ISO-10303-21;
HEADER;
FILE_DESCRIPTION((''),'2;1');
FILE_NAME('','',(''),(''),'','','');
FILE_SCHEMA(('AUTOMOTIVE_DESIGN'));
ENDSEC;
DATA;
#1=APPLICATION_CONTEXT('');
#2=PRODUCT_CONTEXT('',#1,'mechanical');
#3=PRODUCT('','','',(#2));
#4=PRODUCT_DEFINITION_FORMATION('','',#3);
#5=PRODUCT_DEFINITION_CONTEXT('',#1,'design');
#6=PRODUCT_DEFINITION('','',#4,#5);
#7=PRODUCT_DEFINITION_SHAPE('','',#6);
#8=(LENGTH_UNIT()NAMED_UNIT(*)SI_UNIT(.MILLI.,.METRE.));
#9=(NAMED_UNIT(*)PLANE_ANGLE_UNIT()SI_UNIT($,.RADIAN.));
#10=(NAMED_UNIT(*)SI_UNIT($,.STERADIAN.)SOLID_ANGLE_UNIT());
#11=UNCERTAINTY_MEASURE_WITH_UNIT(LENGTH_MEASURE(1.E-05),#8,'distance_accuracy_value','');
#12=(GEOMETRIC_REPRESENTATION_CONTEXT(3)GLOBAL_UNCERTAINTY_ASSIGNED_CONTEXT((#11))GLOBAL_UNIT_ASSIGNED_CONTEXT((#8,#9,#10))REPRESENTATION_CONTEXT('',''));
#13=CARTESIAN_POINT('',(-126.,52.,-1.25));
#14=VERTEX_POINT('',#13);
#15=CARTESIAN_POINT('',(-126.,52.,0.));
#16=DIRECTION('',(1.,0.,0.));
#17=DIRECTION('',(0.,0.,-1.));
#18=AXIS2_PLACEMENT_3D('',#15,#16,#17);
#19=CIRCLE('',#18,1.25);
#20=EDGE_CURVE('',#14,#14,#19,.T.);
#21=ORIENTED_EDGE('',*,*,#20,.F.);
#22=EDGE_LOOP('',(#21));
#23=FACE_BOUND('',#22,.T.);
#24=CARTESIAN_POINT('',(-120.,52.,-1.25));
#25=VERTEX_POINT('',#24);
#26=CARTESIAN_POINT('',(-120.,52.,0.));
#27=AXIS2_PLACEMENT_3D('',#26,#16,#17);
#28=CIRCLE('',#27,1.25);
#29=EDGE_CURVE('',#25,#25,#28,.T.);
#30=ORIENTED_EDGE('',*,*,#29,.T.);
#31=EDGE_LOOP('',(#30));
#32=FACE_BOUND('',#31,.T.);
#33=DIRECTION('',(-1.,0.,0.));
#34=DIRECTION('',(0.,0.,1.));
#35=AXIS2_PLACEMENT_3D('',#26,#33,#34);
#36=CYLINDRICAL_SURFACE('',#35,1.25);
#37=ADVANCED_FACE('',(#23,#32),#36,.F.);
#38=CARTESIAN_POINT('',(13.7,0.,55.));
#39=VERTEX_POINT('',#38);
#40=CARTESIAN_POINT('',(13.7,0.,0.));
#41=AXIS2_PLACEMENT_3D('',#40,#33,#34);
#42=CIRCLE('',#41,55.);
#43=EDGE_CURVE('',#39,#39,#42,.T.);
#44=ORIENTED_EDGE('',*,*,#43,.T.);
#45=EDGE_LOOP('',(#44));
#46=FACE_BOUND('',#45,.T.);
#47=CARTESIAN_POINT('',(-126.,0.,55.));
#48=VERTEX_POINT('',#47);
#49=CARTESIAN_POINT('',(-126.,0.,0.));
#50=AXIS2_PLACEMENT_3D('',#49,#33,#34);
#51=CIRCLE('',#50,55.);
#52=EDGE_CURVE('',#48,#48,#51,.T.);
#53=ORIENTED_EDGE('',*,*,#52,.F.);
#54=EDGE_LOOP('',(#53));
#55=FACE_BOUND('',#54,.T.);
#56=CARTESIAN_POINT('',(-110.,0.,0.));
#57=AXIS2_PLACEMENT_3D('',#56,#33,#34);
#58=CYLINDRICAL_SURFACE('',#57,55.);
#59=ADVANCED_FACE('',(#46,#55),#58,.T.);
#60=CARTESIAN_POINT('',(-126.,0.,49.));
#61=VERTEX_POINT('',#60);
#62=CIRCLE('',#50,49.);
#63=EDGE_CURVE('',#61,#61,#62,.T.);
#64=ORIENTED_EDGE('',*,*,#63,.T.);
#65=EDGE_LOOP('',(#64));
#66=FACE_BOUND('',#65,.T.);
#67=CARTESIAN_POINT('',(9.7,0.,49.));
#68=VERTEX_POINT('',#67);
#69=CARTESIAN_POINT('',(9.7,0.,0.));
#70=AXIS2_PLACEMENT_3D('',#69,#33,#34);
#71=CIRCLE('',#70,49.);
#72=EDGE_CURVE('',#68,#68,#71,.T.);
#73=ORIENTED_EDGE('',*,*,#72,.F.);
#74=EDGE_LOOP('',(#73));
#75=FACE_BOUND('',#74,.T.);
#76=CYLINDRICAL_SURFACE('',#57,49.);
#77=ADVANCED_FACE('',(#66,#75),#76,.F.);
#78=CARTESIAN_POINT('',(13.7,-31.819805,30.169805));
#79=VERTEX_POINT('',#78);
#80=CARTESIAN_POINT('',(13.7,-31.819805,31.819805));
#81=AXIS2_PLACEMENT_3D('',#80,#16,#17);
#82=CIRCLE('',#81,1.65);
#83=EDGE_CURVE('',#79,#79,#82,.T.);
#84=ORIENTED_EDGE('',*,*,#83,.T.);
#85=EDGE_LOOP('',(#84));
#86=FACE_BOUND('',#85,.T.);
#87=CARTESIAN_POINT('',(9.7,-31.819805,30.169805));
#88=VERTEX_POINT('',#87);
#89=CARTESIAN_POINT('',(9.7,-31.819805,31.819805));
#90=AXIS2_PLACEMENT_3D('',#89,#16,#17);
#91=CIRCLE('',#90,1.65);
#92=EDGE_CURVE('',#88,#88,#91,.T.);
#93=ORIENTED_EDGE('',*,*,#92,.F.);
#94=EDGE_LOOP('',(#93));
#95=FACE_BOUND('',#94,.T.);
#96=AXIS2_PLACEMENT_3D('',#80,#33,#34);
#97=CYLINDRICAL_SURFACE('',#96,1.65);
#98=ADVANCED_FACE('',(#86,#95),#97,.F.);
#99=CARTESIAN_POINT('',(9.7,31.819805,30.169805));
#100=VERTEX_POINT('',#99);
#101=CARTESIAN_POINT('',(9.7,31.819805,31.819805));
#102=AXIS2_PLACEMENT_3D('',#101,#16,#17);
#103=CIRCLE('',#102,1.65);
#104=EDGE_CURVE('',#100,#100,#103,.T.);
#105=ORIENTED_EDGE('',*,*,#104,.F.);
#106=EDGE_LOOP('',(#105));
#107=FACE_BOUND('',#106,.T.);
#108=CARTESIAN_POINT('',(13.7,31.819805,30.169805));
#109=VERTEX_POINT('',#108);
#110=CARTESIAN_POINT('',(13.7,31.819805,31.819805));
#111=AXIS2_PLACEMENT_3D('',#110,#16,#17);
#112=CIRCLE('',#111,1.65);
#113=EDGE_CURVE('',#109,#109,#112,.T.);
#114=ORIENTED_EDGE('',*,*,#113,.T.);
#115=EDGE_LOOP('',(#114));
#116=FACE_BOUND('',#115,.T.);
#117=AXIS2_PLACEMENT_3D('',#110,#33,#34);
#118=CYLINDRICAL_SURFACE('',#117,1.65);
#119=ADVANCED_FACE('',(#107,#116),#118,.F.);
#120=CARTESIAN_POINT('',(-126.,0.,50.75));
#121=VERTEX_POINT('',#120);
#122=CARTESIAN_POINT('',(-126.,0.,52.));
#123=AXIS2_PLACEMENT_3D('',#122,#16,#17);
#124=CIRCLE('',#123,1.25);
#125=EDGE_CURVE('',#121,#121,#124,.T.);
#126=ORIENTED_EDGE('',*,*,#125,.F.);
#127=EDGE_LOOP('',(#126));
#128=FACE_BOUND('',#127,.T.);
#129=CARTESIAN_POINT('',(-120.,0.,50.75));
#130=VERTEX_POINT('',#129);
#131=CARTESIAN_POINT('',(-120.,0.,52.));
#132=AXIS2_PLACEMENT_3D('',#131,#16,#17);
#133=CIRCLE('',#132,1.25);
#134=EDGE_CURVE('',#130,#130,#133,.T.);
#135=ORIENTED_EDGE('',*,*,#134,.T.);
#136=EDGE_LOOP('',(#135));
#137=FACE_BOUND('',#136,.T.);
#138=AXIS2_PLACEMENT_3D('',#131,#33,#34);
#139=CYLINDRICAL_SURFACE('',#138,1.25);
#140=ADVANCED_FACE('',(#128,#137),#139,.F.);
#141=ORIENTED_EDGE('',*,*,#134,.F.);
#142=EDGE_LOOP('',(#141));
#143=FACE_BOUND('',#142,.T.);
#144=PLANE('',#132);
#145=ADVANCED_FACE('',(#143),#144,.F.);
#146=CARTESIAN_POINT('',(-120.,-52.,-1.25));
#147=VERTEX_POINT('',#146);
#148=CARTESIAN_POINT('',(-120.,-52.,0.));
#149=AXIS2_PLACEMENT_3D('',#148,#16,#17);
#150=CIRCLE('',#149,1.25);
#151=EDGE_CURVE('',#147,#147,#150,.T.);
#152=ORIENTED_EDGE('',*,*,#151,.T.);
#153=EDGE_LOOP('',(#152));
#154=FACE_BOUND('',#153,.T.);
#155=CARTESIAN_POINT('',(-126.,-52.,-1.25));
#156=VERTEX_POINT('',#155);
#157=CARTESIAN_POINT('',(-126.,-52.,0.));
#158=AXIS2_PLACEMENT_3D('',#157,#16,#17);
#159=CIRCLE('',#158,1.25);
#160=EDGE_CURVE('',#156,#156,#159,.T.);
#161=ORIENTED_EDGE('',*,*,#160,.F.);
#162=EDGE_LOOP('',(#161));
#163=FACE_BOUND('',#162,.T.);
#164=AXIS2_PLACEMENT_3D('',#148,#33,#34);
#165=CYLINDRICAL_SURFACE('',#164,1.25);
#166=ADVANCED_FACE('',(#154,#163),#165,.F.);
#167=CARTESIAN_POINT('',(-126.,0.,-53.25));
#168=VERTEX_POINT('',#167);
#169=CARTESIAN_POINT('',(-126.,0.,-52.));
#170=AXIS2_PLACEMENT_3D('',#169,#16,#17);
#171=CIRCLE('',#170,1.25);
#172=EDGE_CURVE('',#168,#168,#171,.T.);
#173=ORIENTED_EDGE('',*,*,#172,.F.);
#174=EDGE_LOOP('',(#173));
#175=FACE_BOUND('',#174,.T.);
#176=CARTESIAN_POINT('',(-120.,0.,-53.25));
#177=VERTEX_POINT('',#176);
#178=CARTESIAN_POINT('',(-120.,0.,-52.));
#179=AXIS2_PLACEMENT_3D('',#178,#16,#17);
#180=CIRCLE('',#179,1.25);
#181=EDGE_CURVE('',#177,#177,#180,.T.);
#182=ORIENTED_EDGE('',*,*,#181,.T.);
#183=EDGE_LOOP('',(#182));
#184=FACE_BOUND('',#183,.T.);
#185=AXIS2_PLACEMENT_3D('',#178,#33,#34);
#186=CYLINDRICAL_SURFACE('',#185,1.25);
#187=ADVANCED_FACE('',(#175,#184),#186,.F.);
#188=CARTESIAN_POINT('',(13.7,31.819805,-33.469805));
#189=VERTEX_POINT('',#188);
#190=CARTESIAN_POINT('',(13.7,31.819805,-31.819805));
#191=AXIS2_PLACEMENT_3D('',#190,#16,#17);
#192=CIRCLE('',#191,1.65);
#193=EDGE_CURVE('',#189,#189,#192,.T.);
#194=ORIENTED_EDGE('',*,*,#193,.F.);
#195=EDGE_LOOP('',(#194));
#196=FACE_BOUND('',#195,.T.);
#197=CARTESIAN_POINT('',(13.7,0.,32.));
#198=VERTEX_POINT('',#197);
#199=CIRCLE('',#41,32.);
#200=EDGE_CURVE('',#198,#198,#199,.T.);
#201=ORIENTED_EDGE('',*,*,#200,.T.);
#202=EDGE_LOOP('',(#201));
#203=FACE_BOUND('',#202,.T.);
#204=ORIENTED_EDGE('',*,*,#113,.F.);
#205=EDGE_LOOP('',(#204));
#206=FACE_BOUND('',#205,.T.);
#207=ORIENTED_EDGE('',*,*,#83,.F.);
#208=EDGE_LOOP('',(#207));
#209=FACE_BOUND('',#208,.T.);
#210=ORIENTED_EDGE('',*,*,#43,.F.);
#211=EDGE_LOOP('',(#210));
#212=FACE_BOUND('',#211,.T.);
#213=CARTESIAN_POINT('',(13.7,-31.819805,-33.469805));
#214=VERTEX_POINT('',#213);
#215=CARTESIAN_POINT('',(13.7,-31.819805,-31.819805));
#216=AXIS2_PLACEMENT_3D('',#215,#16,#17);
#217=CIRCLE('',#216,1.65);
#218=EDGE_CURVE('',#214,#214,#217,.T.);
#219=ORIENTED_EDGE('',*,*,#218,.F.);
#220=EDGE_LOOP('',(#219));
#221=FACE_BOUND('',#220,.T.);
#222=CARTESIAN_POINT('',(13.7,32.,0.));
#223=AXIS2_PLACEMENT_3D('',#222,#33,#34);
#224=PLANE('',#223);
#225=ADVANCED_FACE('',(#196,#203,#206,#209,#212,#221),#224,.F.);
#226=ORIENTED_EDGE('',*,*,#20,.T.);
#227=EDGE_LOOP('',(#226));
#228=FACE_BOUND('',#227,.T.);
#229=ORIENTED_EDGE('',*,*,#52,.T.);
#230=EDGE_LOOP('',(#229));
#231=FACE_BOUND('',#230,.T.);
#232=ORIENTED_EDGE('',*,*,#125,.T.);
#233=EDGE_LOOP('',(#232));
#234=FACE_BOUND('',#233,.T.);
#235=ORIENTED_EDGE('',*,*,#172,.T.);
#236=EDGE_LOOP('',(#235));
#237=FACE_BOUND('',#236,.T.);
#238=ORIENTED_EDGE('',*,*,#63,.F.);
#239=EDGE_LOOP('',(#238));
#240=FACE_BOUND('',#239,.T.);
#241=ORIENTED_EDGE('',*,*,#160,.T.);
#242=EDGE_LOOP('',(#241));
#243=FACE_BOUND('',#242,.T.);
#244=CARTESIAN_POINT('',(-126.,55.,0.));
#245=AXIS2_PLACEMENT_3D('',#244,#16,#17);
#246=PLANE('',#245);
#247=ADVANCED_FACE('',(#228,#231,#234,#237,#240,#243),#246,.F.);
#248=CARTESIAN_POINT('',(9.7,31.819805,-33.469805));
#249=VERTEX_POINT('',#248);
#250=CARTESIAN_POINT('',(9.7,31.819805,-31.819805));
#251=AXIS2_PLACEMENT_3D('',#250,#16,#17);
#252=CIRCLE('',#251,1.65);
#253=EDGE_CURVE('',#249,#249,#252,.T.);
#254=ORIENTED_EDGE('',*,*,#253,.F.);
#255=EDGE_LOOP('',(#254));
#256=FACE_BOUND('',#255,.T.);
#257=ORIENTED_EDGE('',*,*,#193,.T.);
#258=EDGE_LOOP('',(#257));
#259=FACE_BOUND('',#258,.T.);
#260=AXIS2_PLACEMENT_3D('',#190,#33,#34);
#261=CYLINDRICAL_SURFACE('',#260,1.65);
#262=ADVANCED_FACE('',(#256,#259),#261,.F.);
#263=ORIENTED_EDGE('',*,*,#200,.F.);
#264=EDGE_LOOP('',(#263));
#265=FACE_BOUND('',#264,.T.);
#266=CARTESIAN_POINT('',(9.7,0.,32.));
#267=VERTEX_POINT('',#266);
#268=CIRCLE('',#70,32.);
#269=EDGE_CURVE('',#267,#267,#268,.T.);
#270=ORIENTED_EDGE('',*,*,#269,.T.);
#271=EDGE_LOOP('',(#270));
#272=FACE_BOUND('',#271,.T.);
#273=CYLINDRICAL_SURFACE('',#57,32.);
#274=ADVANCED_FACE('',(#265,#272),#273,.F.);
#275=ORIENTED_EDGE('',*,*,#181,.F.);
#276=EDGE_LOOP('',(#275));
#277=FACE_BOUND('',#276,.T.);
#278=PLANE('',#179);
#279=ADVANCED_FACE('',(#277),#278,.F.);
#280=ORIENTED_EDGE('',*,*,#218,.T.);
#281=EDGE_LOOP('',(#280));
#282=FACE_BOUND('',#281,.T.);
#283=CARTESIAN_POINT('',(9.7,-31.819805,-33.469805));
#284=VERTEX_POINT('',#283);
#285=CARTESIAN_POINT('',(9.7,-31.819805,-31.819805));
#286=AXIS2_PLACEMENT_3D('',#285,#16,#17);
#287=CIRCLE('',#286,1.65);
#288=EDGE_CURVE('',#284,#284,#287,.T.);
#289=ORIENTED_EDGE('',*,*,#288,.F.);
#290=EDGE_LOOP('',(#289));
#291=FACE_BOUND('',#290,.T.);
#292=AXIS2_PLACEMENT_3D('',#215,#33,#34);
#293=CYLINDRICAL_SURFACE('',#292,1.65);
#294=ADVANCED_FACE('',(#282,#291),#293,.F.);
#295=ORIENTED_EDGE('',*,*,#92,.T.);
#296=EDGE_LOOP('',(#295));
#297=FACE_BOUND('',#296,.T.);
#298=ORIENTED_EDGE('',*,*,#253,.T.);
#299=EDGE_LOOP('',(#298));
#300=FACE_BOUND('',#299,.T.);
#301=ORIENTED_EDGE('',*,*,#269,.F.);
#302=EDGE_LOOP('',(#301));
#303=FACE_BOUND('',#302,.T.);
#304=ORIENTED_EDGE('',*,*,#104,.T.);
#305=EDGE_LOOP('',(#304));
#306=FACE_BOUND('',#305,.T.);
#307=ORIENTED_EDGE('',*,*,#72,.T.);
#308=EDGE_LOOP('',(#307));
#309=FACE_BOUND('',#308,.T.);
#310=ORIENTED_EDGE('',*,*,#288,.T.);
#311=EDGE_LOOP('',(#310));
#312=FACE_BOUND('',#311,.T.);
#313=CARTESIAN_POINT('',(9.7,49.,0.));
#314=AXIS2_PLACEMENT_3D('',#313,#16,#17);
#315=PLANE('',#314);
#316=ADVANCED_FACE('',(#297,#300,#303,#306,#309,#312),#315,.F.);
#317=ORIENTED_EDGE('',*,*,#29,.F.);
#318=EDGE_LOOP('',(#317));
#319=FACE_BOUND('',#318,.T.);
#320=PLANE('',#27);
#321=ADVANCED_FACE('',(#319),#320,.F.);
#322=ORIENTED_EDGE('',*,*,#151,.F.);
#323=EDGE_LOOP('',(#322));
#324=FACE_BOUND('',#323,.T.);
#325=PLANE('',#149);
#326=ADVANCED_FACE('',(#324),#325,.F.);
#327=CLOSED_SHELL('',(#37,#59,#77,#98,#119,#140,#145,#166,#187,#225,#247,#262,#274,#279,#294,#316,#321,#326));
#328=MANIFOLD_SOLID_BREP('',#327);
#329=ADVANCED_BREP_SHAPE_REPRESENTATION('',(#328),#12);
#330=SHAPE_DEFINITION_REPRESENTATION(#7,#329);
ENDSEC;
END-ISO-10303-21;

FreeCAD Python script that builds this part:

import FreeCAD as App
import Part
import Sketcher


def add_polygon(sketch, points):
    """Adds a closed chain of lines whose ends are joined by coincident constraints."""
    first, n = sketch.GeometryCount, len(points)
    for a, b in zip(points, points[1:] + points[:1]):
        sketch.addGeometry(Part.LineSegment(App.Vector(*a, 0), App.Vector(*b, 0)), False)
    for i in range(n):
        sketch.addConstraint(Sketcher.Constraint("Coincident", first + i, 2, first + (i + 1) % n, 1))

doc = App.newDocument("Part")
body = doc.addObject("PartDesign::Body", "Body")

# Sketch on XY plane
sketch1 = body.newObject("Sketcher::SketchObject", "Sketch")
sketch1.AttachmentSupport = (doc.getObject("XY_Plane"), [""])
sketch1.MapMode = "FlatFace"
add_polygon(sketch1, [(-126, 49), (9.7, 49), (9.7, 32), (13.7, 32), (13.7, 55), (-126, 55)])  # lines 0-5
sketch1.addConstraint([
    Sketcher.Constraint("Horizontal", 0),
    Sketcher.Constraint("Vertical", 1),
    Sketcher.Constraint("Horizontal", 2),
    Sketcher.Constraint("Vertical", 3),
    Sketcher.Constraint("Horizontal", 4),
    Sketcher.Constraint("Vertical", 5),
    Sketcher.Constraint("DistanceX", 2, 1, 2, 2, 4.0),
    Sketcher.Constraint("DistanceY", 1, 2, 1, 1, 17.0),
    Sketcher.Constraint("DistanceY", 3, 1, 3, 2, 23.0),
    Sketcher.Constraint("DistanceX", 0, 1, 0, 2, 135.7),
    Sketcher.Constraint("DistanceY", -1, 1, 0, 2, 49.0),
    Sketcher.Constraint("DistanceX", 4, 2, -1, 1, 126.0),
])
revolution = body.newObject("PartDesign::Revolution", "Revolution")
revolution.Profile = sketch1
revolution.ReferenceAxis = (sketch1, ["H_Axis"])
revolution.Angle = 360

# Sketch on YZ plane
sketch2 = body.newObject("Sketcher::SketchObject", "Sketch001")
sketch2.AttachmentSupport = (doc.getObject("YZ_Plane"), [""])
sketch2.MapMode = "FlatFace"
sketch2.AttachmentOffset = App.Placement(App.Vector(0, 0, 9.7), App.Rotation())
sketch2.addGeometry([
    Part.Circle(App.Vector(31.8, 31.8, 0), App.Vector(0, 0, 1), 1.6),
    Part.Circle(App.Vector(-31.8, 31.8, 0), App.Vector(0, 0, 1), 1.6),
    Part.Circle(App.Vector(-31.8, -31.8, 0), App.Vector(0, 0, 1), 1.6),
    Part.Circle(App.Vector(31.8, -31.8, 0), App.Vector(0, 0, 1), 1.6),
], False)
sketch2.addConstraint([
    Sketcher.Constraint("Equal", 0, 1),
    Sketcher.Constraint("Equal", 1, 2),
    Sketcher.Constraint("Equal", 2, 3),
    Sketcher.Constraint("Symmetric", 0, 3, 2, 3, -1, 1),
    Sketcher.Constraint("Symmetric", 1, 3, 3, 3, -1, 1),
    Sketcher.Constraint("Symmetric", 0, 3, 1, 3, -2),
    Sketcher.Constraint("Diameter", 0, 3.3),
    Sketcher.Constraint("DistanceX", 1, 3, 0, 3, 63.63961),
    Sketcher.Constraint("DistanceY", 2, 3, 1, 3, 63.63961),
])
pocket1 = body.newObject("PartDesign::Pocket", "Pocket")
pocket1.Profile = sketch2
pocket1.Length = 4
pocket1.Reversed = True

# Sketch on YZ plane
sketch3 = body.newObject("Sketcher::SketchObject", "Sketch002")
sketch3.AttachmentSupport = (doc.getObject("YZ_Plane"), [""])
sketch3.MapMode = "FlatFace"
sketch3.AttachmentOffset = App.Placement(App.Vector(0, 0, -126), App.Rotation())
sketch3.addGeometry([
    Part.Circle(App.Vector(52, 0, 0), App.Vector(0, 0, 1), 1.2),
    Part.Circle(App.Vector(0, 52, 0), App.Vector(0, 0, 1), 1.2),
    Part.Circle(App.Vector(-52, 0, 0), App.Vector(0, 0, 1), 1.2),
    Part.Circle(App.Vector(0, -52, 0), App.Vector(0, 0, 1), 1.2),
], False)
sketch3.addConstraint([
    Sketcher.Constraint("Equal", 0, 1),
    Sketcher.Constraint("Equal", 1, 2),
    Sketcher.Constraint("Equal", 2, 3),
    Sketcher.Constraint("Symmetric", 0, 3, 2, 3, -1, 1),
    Sketcher.Constraint("Symmetric", 1, 3, 3, 3, -1, 1),
    Sketcher.Constraint("PointOnObject", 0, 3, -1),
    Sketcher.Constraint("PointOnObject", 1, 3, -2),
    Sketcher.Constraint("Diameter", 0, 2.5),
    Sketcher.Constraint("DistanceX", -1, 1, 0, 3, 52.0),
    Sketcher.Constraint("DistanceY", -1, 1, 1, 3, 52.0),
])
pocket2 = body.newObject("PartDesign::Pocket", "Pocket001")
pocket2.Profile = sketch3
pocket2.Length = 6
pocket2.Reversed = True

doc.recompute()
